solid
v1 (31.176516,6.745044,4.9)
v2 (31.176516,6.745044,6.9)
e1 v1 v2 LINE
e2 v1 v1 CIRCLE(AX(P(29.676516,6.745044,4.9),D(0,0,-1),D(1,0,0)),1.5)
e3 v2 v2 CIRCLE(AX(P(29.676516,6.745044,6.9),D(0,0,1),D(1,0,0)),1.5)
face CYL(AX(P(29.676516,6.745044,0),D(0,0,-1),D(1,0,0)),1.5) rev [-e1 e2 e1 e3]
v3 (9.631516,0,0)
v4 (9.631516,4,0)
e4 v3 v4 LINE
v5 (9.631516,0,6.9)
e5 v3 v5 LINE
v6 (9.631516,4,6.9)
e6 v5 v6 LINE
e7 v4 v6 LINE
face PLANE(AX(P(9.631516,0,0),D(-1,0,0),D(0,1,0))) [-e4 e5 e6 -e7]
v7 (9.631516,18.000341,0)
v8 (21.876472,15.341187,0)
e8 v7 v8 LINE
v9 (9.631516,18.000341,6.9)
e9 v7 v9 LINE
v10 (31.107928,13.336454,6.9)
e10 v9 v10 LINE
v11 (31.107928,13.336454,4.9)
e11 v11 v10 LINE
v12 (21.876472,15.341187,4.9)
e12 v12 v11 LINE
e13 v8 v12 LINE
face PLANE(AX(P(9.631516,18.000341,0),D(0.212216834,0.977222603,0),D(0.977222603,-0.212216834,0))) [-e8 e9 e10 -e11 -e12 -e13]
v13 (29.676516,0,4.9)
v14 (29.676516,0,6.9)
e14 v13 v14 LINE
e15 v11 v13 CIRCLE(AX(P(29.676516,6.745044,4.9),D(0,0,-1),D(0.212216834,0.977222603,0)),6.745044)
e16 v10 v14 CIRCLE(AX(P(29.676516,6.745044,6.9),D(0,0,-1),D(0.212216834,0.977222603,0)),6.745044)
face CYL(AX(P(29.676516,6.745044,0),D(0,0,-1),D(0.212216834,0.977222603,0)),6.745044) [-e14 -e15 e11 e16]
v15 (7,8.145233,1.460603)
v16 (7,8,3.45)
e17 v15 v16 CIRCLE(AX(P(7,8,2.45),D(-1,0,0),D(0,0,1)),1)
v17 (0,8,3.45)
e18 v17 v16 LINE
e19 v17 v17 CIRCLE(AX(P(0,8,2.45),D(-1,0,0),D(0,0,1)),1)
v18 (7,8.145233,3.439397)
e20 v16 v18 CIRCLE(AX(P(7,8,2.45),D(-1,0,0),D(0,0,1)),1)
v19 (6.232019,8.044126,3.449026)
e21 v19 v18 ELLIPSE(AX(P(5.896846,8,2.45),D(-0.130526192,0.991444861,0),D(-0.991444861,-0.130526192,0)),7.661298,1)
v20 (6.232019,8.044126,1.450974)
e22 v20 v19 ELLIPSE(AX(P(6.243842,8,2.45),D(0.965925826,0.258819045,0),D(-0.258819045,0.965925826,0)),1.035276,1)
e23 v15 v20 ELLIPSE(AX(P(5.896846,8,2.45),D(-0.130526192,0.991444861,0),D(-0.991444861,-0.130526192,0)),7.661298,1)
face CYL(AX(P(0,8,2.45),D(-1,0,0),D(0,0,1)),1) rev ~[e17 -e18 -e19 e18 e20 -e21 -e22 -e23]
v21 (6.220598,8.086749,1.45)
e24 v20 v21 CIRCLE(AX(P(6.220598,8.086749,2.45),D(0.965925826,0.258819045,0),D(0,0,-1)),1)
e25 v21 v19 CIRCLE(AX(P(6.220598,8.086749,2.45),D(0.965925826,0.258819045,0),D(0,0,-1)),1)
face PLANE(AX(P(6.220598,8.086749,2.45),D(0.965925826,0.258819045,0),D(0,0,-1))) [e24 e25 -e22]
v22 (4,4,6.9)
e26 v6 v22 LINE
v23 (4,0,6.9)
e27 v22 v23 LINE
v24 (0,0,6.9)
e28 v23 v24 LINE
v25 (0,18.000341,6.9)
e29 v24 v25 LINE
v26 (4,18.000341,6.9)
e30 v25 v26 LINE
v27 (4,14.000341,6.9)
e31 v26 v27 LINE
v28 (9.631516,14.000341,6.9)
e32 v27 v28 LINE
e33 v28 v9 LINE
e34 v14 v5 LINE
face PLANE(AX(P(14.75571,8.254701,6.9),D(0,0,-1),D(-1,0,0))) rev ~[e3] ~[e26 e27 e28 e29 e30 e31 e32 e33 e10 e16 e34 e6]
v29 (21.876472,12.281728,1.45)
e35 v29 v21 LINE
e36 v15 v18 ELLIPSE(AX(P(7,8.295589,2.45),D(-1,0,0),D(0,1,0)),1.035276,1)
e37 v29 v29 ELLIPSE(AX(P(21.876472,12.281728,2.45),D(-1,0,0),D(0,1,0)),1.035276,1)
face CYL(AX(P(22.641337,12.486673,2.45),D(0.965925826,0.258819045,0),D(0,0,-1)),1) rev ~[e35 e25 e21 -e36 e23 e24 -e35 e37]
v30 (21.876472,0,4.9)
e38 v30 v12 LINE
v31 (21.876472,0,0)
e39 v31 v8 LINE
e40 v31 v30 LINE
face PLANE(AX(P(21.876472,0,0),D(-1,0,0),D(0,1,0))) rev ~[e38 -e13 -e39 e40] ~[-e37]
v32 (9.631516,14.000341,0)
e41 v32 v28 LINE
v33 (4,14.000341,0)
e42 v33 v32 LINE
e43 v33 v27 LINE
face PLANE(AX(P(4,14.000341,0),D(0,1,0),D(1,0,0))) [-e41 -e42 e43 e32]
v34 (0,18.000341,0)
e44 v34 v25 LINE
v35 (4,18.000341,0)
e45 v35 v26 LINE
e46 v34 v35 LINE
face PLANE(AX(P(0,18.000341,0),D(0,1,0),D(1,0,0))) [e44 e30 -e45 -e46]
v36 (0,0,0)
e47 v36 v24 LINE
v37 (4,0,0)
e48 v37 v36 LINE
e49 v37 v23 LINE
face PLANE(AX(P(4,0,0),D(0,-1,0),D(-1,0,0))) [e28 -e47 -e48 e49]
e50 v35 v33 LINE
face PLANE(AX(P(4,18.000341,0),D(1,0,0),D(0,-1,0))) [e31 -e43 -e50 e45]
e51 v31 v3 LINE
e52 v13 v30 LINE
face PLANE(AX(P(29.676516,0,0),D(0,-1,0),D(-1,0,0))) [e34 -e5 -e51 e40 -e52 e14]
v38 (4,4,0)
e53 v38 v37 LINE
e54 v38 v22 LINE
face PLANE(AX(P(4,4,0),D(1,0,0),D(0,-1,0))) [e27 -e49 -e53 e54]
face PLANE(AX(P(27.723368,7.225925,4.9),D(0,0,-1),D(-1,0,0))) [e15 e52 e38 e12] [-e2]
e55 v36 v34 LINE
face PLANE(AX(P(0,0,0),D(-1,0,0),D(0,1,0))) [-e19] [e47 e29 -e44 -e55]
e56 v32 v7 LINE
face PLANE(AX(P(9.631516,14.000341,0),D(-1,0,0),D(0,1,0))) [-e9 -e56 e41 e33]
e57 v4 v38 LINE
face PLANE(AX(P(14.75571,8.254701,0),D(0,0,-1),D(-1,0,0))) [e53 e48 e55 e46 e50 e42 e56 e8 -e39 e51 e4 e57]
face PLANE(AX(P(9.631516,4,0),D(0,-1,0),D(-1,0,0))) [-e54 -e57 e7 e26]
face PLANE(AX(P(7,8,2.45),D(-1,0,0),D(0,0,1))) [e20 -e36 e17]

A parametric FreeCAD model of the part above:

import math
import FreeCAD as App
import Part
import Sketcher

doc = App.newDocument("Part")
body = doc.addObject("PartDesign::Body", "Body")

sketch1 = doc.addObject("Sketcher::SketchObject", "Sketch")
body.addObject(sketch1)
sketch1.AttachmentSupport = (doc.XY_Plane, [""])
sketch1.MapMode = "FlatFace"
sketch1.addGeometry(Part.LineSegment(App.Vector(0, 18, 0), App.Vector(0, 0, 0)), False)
sketch1.addGeometry(Part.LineSegment(App.Vector(0, 0, 0), App.Vector(4, 0, 0)), False)
sketch1.addGeometry(Part.LineSegment(App.Vector(4, 0, 0), App.Vector(4, 4, 0)), False)
sketch1.addGeometry(Part.LineSegment(App.Vector(4, 4, 0), App.Vector(9.6, 4, 0)), False)
sketch1.addGeometry(Part.LineSegment(App.Vector(9.6, 4, 0), App.Vector(9.6, 0, 0)), False)
sketch1.addGeometry(Part.LineSegment(App.Vector(9.6, 0, 0), App.Vector(29.7, 0, 0)), False)
sketch1.addGeometry(Part.ArcOfCircle(Part.Circle(App.Vector(29.7, 6.7, 0), App.Vector(0, 0, 1), 6.7), math.radians(-90), math.radians(78)), False)
sketch1.addGeometry(Part.LineSegment(App.Vector(31.1, 13.3, 0), App.Vector(9.6, 18, 0)), False)
sketch1.addGeometry(Part.LineSegment(App.Vector(9.6, 18, 0), App.Vector(9.6, 14, 0)), False)
sketch1.addGeometry(Part.LineSegment(App.Vector(9.6, 14, 0), App.Vector(4, 14, 0)), False)
sketch1.addGeometry(Part.LineSegment(App.Vector(4, 14, 0), App.Vector(4, 18, 0)), False)
sketch1.addGeometry(Part.LineSegment(App.Vector(4, 18, 0), App.Vector(0, 18, 0)), False)
sketch1.addGeometry(Part.Circle(App.Vector(29.7, 6.7, 0), App.Vector(0, 0, 1), 1.5), False)
sketch1.addConstraint(Sketcher.Constraint("Coincident", 0, 2, 1, 1))
sketch1.addConstraint(Sketcher.Constraint("Coincident", 1, 2, 2, 1))
sketch1.addConstraint(Sketcher.Constraint("Coincident", 2, 2, 3, 1))
sketch1.addConstraint(Sketcher.Constraint("Coincident", 3, 2, 4, 1))
sketch1.addConstraint(Sketcher.Constraint("Coincident", 4, 2, 5, 1))
sketch1.addConstraint(Sketcher.Constraint("Tangent", 5, 2, 6, 1))
sketch1.addConstraint(Sketcher.Constraint("Tangent", 6, 2, 7, 1))
sketch1.addConstraint(Sketcher.Constraint("Coincident", 7, 2, 8, 1))
sketch1.addConstraint(Sketcher.Constraint("Coincident", 8, 2, 9, 1))
sketch1.addConstraint(Sketcher.Constraint("Coincident", 9, 2, 10, 1))
sketch1.addConstraint(Sketcher.Constraint("Coincident", 10, 2, 11, 1))
sketch1.addConstraint(Sketcher.Constraint("Coincident", 11, 2, 0, 1))
sketch1.addConstraint(Sketcher.Constraint("Vertical", 0))
sketch1.addConstraint(Sketcher.Constraint("Horizontal", 1))
sketch1.addConstraint(Sketcher.Constraint("Vertical", 2))
sketch1.addConstraint(Sketcher.Constraint("Horizontal", 3))
sketch1.addConstraint(Sketcher.Constraint("Vertical", 4))
sketch1.addConstraint(Sketcher.Constraint("Horizontal", 5))
sketch1.addConstraint(Sketcher.Constraint("Vertical", 8))
sketch1.addConstraint(Sketcher.Constraint("Horizontal", 9))
sketch1.addConstraint(Sketcher.Constraint("Vertical", 10))
sketch1.addConstraint(Sketcher.Constraint("Horizontal", 11))
sketch1.addConstraint(Sketcher.Constraint("Coincident", 0, 2, -1, 1))
sketch1.addConstraint(Sketcher.Constraint("Coincident", 12, 3, 6, 3))
sketch1.addConstraint(Sketcher.Constraint("PointOnObject", 4, 2, -1))
sketch1.addConstraint(Sketcher.Constraint("Horizontal", 7, 2, 10, 2))
sketch1.addConstraint(Sketcher.Constraint("Vertical", 4, 2, 7, 2))
sketch1.addConstraint(Sketcher.Constraint("Vertical", 2, 2, 9, 2))
sketch1.addConstraint(Sketcher.Constraint("Equal", 11, 2))
sketch1.addConstraint(Sketcher.Constraint("Equal", 4, 8))
sketch1.addConstraint(Sketcher.Constraint("Diameter", 12, 3.0))
sketch1.addConstraint(Sketcher.Constraint("DistanceX", 1, 1, 1, 2, 4.0))
sketch1.addConstraint(Sketcher.Constraint("DistanceX", 5, 1, 5, 2, 20.045))
sketch1.addConstraint(Sketcher.Constraint("Radius", 6, 6.745044))
sketch1.addConstraint(Sketcher.Constraint("DistanceY", 0, 2, 0, 1, 18.000341))
sketch1.addConstraint(Sketcher.Constraint("DistanceX", 3, 1, 3, 2, 5.631516))
pad1 = doc.addObject("PartDesign::Pad", "Pad")
body.addObject(pad1)
pad1.Profile = sketch1
pad1.Length = 6.9

sketch2 = doc.addObject("Sketcher::SketchObject", "Sketch001")
body.addObject(sketch2)
sketch2.AttachmentSupport = (doc.XY_Plane, [""])
sketch2.MapMode = "FlatFace"
sketch2.addGeometry(Part.LineSegment(App.Vector(22, 15, 0), App.Vector(22, 0, 0)), False)
sketch2.addGeometry(Part.LineSegment(App.Vector(22, 0, 0), App.Vector(30, 0, 0)), False)
sketch2.addGeometry(Part.ArcOfCircle(Part.Circle(App.Vector(30, 7, 0), App.Vector(0, 0, 1), 7), math.radians(-90), math.radians(78)), False)
sketch2.addGeometry(Part.LineSegment(App.Vector(31, 13, 0), App.Vector(22, 15, 0)), False)
sketch2.addConstraint(Sketcher.Constraint("Coincident", 0, 2, 1, 1))
sketch2.addConstraint(Sketcher.Constraint("Tangent", 1, 2, 2, 1))
sketch2.addConstraint(Sketcher.Constraint("Tangent", 2, 2, 3, 1))
sketch2.addConstraint(Sketcher.Constraint("Coincident", 3, 2, 0, 1))
sketch2.addConstraint(Sketcher.Constraint("Vertical", 0))
sketch2.addConstraint(Sketcher.Constraint("Horizontal", 1))
sketch2.addConstraint(Sketcher.Constraint("PointOnObject", 0, 2, -1))
sketch2.addConstraint(Sketcher.Constraint("Radius", 2, 6.745044))
sketch2.addConstraint(Sketcher.Constraint("DistanceX", 1, 1, 1, 2, 7.800044))
sketch2.addConstraint(Sketcher.Constraint("DistanceY", 0, 2, 0, 1, 15.341187))
sketch2.addConstraint(Sketcher.Constraint("DistanceX", -1, 1, 2, 2, 31.107928))
pocket1 = doc.addObject("PartDesign::Pocket", "Pocket")
body.addObject(pocket1)
pocket1.Profile = sketch2
pocket1.Length = 4.9
pocket1.Reversed = True

sketch3 = doc.addObject("Sketcher::SketchObject", "Sketch002")
body.addObject(sketch3)
sketch3.AttachmentSupport = (doc.YZ_Plane, [""])
sketch3.MapMode = "FlatFace"
sketch3.addGeometry(Part.Circle(App.Vector(8, 2.5, 0), App.Vector(0, 0, 1), 1), False)
sketch3.addConstraint(Sketcher.Constraint("Diameter", 0, 2.0))
sketch3.addConstraint(Sketcher.Constraint("DistanceX", -1, 1, 0, 3, 8.0))
sketch3.addConstraint(Sketcher.Constraint("DistanceY", -1, 1, 0, 3, 2.45))
pocket2 = doc.addObject("PartDesign::Pocket", "Pocket001")
body.addObject(pocket2)
pocket2.Profile = sketch3
pocket2.Length = 7
pocket2.Reversed = True

sketch4 = doc.addObject("Sketcher::SketchObject", "Sketch003")
body.addObject(sketch4)
sketch4.Placement = App.Placement(App.Vector(24.246323, 6.496783, 0), App.Rotation(App.Vector(0, 0, -1), App.Vector(-0.258819045, 0.965925826, 0), App.Vector(0.965925826, 0.258819045, 0), "ZXY"))
sketch4.addGeometry(Part.Circle(App.Vector(-2.5, 6.2, 0), App.Vector(0, 0, 1), 1), False)
sketch4.addConstraint(Sketcher.Constraint("Diameter", 0, 2.0))
sketch4.addConstraint(Sketcher.Constraint("DistanceX", 0, 3, -1, 1, 2.45))
sketch4.addConstraint(Sketcher.Constraint("DistanceY", -1, 1, 0, 3, 6.20119))
pocket3 = doc.addObject("PartDesign::Pocket", "Pocket002")
body.addObject(pocket3)
pocket3.Profile = sketch4
pocket3.Length = 17

doc.recompute()
